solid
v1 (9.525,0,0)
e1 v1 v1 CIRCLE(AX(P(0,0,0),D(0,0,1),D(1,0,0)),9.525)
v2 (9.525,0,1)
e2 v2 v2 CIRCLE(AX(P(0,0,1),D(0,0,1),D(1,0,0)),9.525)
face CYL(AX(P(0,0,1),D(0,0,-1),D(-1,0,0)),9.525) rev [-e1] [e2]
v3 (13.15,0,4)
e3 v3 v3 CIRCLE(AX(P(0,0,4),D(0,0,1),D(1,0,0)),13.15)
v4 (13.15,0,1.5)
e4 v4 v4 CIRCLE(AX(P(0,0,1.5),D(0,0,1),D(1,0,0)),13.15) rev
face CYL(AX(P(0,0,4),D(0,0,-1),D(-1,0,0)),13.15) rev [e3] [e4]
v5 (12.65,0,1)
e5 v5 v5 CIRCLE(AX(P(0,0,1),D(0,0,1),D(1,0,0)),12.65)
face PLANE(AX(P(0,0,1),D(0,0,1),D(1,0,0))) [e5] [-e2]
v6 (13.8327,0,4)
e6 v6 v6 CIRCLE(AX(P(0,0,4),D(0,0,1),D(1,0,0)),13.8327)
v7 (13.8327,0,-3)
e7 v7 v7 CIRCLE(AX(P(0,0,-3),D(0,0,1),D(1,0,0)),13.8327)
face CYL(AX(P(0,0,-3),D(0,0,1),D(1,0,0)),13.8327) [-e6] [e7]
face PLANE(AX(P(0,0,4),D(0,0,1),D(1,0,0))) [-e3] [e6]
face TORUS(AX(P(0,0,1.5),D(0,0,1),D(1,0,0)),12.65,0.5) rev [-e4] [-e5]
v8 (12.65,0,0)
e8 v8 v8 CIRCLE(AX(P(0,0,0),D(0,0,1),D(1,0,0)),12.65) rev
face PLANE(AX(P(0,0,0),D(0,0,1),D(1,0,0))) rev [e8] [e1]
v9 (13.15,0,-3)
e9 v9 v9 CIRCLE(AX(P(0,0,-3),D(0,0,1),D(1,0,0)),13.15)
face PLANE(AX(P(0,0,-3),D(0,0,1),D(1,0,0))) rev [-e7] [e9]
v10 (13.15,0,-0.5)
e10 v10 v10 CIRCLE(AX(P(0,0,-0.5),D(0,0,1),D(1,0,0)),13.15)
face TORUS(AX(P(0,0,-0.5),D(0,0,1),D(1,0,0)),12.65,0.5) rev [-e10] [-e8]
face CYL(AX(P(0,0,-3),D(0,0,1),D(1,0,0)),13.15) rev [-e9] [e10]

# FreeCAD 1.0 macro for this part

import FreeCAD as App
import Part
import Sketcher
from FreeCAD import Vector
Q = App.Units.Quantity


def edges_at(feature, points):
    """Names of the edges that pass closest to the given points."""
    edges = feature.Shape.Edges
    near = lambda p: min(range(len(edges)), key=lambda i: edges[i].distToShape(Part.Vertex(*p))[0])
    return sorted({f"Edge{near(p) + 1}" for p in points})

doc = App.newDocument("Part")
body = doc.addObject("PartDesign::Body", "Body")

# Sketch on XY plane
sketch1 = body.newObject("Sketcher::SketchObject", "Sketch")
sketch1.AttachmentSupport = (doc.getObject("XY_Plane"), [""])
sketch1.MapMode = "FlatFace"
sketch1.addGeometry([
    Part.Circle(Vector(0, 0, 0), Vector(0, 0, 1), 14),
    Part.Circle(Vector(0, 0, 0), Vector(0, 0, 1), 13),
], False)
sketch1.addConstraint([
    Sketcher.Constraint("Coincident", 0, 3, -1, 1),
    Sketcher.Constraint("Coincident", 1, 3, -1, 1),
    Sketcher.Constraint("Diameter", 1, Q("26.3 mm")),
    Sketcher.Constraint("Diameter", 0, Q("27.6654 mm")),
])
pad1 = body.newObject("PartDesign::Pad", "Pad")
pad1.Profile = sketch1
pad1.Length = 3
pad1.Reversed = True

# Sketch on XY plane
sketch2 = body.newObject("Sketcher::SketchObject", "Sketch001")
sketch2.AttachmentSupport = (doc.getObject("XY_Plane"), [""])
sketch2.MapMode = "FlatFace"
sketch2.AttachmentOffset = App.Placement(Vector(0, 0, 1), App.Rotation())
sketch2.addGeometry([
    Part.Circle(Vector(0, 0, 0), Vector(0, 0, 1), 14),
    Part.Circle(Vector(0, 0, 0), Vector(0, 0, 1), 10),
], False)
sketch2.addConstraint([
    Sketcher.Constraint("Coincident", 0, 3, -1, 1),
    Sketcher.Constraint("Coincident", 1, 3, -1, 1),
    Sketcher.Constraint("Diameter", 1, Q("19.05 mm")),
    Sketcher.Constraint("Diameter", 0, Q("27.6654 mm")),
])
pad2 = body.newObject("PartDesign::Pad", "Pad001")
pad2.Profile = sketch2
pad2.Length = 1
pad2.Reversed = True

# Sketch on XY plane
sketch3 = body.newObject("Sketcher::SketchObject", "Sketch002")
sketch3.AttachmentSupport = (doc.getObject("XY_Plane"), [""])
sketch3.MapMode = "FlatFace"
sketch3.AttachmentOffset = App.Placement(Vector(0, 0, 4), App.Rotation())
sketch3.addGeometry([
    Part.Circle(Vector(0, 0, 0), Vector(0, 0, 1), 14),
    Part.Circle(Vector(0, 0, 0), Vector(0, 0, 1), 13),
], False)
sketch3.addConstraint([
    Sketcher.Constraint("Coincident", 0, 3, -1, 1),
    Sketcher.Constraint("Coincident", 1, 3, -1, 1),
    Sketcher.Constraint("Diameter", 1, Q("26.3 mm")),
    Sketcher.Constraint("Diameter", 0, Q("27.6654 mm")),
])
pad3 = body.newObject("PartDesign::Pad", "Pad002")
pad3.Profile = sketch3
pad3.Length = 3
pad3.Reversed = True
doc.recompute()

fillet = body.newObject("PartDesign::Fillet", "Fillet")
fillet.Base = (pad3, edges_at(pad3, [(-13.15, 0, 0), (-13.15, 0, 1)]))
fillet.Radius = 0.5

doc.recompute()
